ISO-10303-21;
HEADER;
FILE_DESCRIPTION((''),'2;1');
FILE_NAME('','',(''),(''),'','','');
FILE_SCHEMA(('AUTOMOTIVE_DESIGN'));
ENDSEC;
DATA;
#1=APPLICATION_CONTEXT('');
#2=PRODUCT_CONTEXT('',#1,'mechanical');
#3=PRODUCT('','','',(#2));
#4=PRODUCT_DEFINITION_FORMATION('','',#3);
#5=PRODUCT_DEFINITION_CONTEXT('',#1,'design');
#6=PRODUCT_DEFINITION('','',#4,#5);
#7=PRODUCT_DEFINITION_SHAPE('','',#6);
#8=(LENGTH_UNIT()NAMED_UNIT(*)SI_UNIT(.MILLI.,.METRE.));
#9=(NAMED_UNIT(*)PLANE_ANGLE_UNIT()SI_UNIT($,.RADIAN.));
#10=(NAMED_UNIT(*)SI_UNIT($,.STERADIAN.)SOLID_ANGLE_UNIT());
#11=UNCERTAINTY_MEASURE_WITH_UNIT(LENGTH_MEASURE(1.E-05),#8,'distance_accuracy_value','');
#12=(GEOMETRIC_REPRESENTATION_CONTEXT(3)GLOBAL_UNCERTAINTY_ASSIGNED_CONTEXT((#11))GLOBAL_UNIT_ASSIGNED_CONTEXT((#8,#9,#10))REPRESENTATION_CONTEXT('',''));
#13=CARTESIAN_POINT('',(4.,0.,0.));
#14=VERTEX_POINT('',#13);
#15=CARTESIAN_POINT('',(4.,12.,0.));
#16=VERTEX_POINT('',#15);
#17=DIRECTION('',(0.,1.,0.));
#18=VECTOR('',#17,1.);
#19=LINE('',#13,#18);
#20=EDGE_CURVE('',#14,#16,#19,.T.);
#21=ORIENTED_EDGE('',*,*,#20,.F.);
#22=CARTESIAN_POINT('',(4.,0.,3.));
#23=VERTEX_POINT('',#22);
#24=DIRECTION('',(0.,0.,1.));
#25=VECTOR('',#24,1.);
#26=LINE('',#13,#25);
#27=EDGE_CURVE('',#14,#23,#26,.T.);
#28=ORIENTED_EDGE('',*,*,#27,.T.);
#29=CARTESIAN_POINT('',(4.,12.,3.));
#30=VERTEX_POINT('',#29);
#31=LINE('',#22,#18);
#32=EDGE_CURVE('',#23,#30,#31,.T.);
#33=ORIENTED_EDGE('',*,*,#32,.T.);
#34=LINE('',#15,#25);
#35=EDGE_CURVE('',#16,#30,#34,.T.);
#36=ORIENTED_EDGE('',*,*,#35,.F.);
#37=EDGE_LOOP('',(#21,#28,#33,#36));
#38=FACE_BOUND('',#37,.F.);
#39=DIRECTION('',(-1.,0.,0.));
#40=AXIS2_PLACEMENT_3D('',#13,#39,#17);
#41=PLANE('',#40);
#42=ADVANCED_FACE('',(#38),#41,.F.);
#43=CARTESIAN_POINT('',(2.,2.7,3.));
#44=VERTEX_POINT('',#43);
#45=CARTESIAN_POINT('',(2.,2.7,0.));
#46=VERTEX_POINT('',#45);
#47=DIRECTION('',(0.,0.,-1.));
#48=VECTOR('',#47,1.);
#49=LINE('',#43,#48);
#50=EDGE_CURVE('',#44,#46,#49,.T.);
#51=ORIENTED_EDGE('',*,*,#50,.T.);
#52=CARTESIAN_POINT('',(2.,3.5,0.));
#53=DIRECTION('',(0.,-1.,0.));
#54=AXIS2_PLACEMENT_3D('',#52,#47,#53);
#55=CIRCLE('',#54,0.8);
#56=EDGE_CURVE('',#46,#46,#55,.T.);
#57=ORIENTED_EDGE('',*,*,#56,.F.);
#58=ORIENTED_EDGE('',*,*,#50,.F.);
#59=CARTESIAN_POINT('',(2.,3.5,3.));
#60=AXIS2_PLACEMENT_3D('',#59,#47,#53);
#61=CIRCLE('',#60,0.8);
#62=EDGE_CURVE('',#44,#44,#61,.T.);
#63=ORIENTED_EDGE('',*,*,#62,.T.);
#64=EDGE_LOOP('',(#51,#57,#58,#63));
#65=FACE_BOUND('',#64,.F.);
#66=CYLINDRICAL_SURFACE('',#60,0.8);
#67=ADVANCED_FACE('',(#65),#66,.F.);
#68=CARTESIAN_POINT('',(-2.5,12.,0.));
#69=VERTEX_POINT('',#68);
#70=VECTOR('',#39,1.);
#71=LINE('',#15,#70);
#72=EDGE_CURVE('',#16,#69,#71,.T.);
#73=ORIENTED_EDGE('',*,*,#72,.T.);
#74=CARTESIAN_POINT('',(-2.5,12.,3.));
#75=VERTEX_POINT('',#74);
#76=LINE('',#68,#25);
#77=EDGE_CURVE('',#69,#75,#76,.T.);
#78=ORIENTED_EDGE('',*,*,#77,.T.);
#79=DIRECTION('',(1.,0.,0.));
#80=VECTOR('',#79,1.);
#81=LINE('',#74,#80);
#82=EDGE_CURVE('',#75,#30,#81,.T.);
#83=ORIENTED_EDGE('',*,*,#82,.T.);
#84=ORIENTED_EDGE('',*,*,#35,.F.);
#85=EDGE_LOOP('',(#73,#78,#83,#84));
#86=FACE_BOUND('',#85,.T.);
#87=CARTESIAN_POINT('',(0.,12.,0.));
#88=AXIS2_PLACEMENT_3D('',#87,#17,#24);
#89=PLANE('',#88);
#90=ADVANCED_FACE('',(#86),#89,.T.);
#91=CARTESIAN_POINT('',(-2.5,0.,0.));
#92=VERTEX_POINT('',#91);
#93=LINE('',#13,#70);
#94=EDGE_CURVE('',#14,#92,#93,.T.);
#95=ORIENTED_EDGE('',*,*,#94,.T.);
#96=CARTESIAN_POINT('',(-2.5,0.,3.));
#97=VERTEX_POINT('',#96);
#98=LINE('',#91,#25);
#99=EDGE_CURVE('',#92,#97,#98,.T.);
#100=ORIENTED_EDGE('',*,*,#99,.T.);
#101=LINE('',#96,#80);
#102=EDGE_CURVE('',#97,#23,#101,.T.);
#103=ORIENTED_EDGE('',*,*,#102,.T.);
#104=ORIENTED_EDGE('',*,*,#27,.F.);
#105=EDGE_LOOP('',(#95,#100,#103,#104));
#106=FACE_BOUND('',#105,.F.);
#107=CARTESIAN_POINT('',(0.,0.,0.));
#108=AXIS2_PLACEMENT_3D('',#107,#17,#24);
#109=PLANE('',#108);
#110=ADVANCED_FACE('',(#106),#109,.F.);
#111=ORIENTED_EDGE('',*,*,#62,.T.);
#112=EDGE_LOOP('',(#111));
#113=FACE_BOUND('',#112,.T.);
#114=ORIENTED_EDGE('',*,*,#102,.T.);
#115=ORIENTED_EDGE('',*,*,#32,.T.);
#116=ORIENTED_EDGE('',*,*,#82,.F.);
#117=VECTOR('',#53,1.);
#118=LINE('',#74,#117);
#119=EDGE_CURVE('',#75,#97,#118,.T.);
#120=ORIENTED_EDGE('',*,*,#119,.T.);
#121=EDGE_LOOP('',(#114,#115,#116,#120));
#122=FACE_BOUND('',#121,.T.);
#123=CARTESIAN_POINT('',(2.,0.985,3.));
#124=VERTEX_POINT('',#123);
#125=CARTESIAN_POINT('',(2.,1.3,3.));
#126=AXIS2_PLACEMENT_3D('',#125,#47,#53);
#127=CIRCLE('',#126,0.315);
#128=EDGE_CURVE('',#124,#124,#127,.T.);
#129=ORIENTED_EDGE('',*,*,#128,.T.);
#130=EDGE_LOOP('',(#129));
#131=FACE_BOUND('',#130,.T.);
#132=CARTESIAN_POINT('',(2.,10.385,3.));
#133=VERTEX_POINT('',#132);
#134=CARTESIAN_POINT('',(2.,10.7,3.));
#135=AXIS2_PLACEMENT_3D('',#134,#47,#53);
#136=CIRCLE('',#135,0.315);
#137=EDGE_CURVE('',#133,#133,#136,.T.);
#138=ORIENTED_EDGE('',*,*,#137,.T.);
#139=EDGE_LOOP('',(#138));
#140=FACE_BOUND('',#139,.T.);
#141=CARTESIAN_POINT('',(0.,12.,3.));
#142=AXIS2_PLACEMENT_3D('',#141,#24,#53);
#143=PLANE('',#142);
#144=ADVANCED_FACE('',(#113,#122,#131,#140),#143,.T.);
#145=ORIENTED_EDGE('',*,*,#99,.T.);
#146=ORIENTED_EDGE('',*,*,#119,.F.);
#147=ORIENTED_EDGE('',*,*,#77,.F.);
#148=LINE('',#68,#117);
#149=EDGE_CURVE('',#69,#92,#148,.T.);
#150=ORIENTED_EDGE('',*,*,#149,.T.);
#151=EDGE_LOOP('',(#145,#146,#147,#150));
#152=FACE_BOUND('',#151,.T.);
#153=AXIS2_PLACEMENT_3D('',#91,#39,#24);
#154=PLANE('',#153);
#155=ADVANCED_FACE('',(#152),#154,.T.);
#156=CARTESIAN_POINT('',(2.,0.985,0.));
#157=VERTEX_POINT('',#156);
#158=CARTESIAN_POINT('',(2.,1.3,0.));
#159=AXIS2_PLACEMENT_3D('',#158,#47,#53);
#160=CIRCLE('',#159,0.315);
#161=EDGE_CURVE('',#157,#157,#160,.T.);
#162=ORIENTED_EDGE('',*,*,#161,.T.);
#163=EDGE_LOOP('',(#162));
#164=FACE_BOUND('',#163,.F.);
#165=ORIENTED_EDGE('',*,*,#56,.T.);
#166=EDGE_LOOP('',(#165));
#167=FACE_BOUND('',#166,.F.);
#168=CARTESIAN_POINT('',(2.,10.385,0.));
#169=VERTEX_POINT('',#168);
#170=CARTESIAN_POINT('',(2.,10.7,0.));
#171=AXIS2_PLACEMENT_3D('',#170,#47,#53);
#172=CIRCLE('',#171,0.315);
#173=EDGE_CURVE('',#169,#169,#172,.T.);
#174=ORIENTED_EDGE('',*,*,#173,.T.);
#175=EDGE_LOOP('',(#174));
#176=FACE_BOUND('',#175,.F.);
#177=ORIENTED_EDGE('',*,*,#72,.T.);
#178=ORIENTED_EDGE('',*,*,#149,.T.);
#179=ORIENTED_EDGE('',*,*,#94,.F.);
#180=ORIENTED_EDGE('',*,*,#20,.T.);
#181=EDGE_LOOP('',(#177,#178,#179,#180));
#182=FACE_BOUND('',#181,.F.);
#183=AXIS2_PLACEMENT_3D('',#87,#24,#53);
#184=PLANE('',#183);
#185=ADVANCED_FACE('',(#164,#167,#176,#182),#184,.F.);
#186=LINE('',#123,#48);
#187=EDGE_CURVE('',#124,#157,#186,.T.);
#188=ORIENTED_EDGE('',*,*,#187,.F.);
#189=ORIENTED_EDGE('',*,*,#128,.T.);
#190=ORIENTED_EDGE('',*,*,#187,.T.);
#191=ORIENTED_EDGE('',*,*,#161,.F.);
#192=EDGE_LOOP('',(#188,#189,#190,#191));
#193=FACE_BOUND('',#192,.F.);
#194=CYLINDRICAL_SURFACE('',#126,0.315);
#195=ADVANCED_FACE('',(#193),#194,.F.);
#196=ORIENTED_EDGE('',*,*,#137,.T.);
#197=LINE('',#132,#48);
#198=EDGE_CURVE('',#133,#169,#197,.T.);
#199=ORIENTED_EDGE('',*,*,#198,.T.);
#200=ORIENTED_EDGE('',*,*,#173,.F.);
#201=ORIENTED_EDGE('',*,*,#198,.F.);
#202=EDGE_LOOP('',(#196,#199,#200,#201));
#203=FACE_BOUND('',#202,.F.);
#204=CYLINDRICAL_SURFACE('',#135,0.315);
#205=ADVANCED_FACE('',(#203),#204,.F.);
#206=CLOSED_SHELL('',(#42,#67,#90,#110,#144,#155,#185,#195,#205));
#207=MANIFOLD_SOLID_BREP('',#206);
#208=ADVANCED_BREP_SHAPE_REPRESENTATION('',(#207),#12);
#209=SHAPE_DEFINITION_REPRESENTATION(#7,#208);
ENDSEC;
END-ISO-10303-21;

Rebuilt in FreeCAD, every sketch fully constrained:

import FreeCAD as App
import Part
import Sketcher

V = App.Vector

doc = App.newDocument("Part")
params = doc.addObject("Spreadsheet::Sheet", "Params")
for row, (alias, value) in enumerate([
    ("sketch1_width", "4 mm"),
    ("sketch1_height", "12 mm"),
    ("pad1_length", "3 mm"),
    ("sketch2_diameter", "1.6 mm"),
    ("hole_diameter", "1.6 mm"),
    ("sketch3_diameter", "0.63 mm"),
    ("hole2_diameter", "0.63 mm"),
    ("sketch4_width", "12 mm"),
    ("sketch4_height", "3 mm"),
    ("pad2_length", "2.5 mm"),
], start=1):
    params.set(f"A{row}", alias)
    params.set(f"B{row}", "=" + value)
    params.setAlias(f"B{row}", alias)

body = doc.addObject("PartDesign::Body", "Body")

# Sketch on XY plane
sketch1 = body.newObject("Sketcher::SketchObject", "Sketch")
sketch1.AttachmentSupport = (doc.getObject("XY_Plane"), [""])
sketch1.MapMode = "FlatFace"
sketch1.addGeometry([
    Part.LineSegment(V(0, 12, 0), V(0, 0, 0)),
    Part.LineSegment(V(0, 0, 0), V(4, 0, 0)),
    Part.LineSegment(V(4, 0, 0), V(4, 12, 0)),
    Part.LineSegment(V(4, 12, 0), V(0, 12, 0)),
], False)
sketch1.addConstraint([
    Sketcher.Constraint("Coincident", 0, 2, 1, 1),
    Sketcher.Constraint("Coincident", 1, 2, 2, 1),
    Sketcher.Constraint("Coincident", 2, 2, 3, 1),
    Sketcher.Constraint("Coincident", 3, 2, 0, 1),
    Sketcher.Constraint("Vertical", 0),
    Sketcher.Constraint("Horizontal", 1),
    Sketcher.Constraint("Vertical", 2),
    Sketcher.Constraint("Horizontal", 3),
    Sketcher.Constraint("Coincident", 0, 2, -1, 1),
    Sketcher.Constraint("DistanceX", 1, 1, 1, 2, 4.0),
    Sketcher.Constraint("DistanceY", 0, 2, 0, 1, 12.0),
])
sketch1.setExpression("Constraints[9]", "Params.sketch1_width")
sketch1.setExpression("Constraints[10]", "Params.sketch1_height")
pad1 = body.newObject("PartDesign::Pad", "Pad")
pad1.Profile = sketch1
pad1.setExpression("Length", "Params.pad1_length")

# Sketch on XY plane
sketch2 = body.newObject("Sketcher::SketchObject", "Sketch001")
sketch2.AttachmentSupport = (doc.getObject("XY_Plane"), [""])
sketch2.MapMode = "FlatFace"
sketch2.AttachmentOffset = App.Placement(V(0, 0, 3), App.Rotation())
sketch2.addGeometry(Part.Circle(V(2, 3.5, 0), V(0, 0, 1), 0.8), False)
sketch2.addConstraint([
    Sketcher.Constraint("Diameter", 0, 1.6),
    Sketcher.Constraint("DistanceX", -1, 1, 0, 3, 2.0),
    Sketcher.Constraint("DistanceY", -1, 1, 0, 3, 3.5),
])
sketch2.setExpression("Constraints[0]", "Params.sketch2_diameter")
doc.recompute()
hole = body.newObject("PartDesign::Hole", "Hole")
hole.Profile = sketch2
hole.ThreadType = "None"
hole.setExpression("Diameter", "Params.hole_diameter")
hole.DepthType = "ThroughAll"

# Sketch on XY plane
sketch3 = body.newObject("Sketcher::SketchObject", "Sketch002")
sketch3.AttachmentSupport = (doc.getObject("XY_Plane"), [""])
sketch3.MapMode = "FlatFace"
sketch3.AttachmentOffset = App.Placement(V(0, 0, 3), App.Rotation())
sketch3.addGeometry([
    Part.Circle(V(2, 1.3, 0), V(0, 0, 1), 0.32),
    Part.Circle(V(2, 10.7, 0), V(0, 0, 1), 0.32),
], False)
sketch3.addConstraint([
    Sketcher.Constraint("Equal", 0, 1),
    Sketcher.Constraint("Vertical", 0, 3, 1, 3),
    Sketcher.Constraint("Diameter", 0, 0.63),
    Sketcher.Constraint("DistanceX", -1, 1, 0, 3, 2.0),
    Sketcher.Constraint("DistanceY", -1, 1, 0, 3, 1.3),
    Sketcher.Constraint("DistanceY", -1, 1, 1, 3, 10.7),
])
sketch3.setExpression("Constraints[2]", "Params.sketch3_diameter")
doc.recompute()
hole2 = body.newObject("PartDesign::Hole", "Hole001")
hole2.Profile = sketch3
hole2.ThreadType = "None"
hole2.setExpression("Diameter", "Params.hole2_diameter")
hole2.DepthType = "ThroughAll"

# Sketch on YZ plane
sketch4 = body.newObject("Sketcher::SketchObject", "Sketch003")
sketch4.AttachmentSupport = (doc.getObject("YZ_Plane"), [""])
sketch4.MapMode = "FlatFace"
sketch4.addGeometry([
    Part.LineSegment(V(12, 3, 0), V(12, 0, 0)),
    Part.LineSegment(V(12, 0, 0), V(0, 0, 0)),
    Part.LineSegment(V(0, 0, 0), V(0, 3, 0)),
    Part.LineSegment(V(0, 3, 0), V(12, 3, 0)),
], False)
sketch4.addConstraint([
    Sketcher.Constraint("Coincident", 0, 2, 1, 1),
    Sketcher.Constraint("Coincident", 1, 2, 2, 1),
    Sketcher.Constraint("Coincident", 2, 2, 3, 1),
    Sketcher.Constraint("Coincident", 3, 2, 0, 1),
    Sketcher.Constraint("Vertical", 0),
    Sketcher.Constraint("Horizontal", 1),
    Sketcher.Constraint("Vertical", 2),
    Sketcher.Constraint("Horizontal", 3),
    Sketcher.Constraint("Coincident", 1, 2, -1, 1),
    Sketcher.Constraint("DistanceX", 1, 2, 1, 1, 12.0),
    Sketcher.Constraint("DistanceY", 0, 2, 0, 1, 3.0),
])
sketch4.setExpression("Constraints[9]", "Params.sketch4_width")
sketch4.setExpression("Constraints[10]", "Params.sketch4_height")
pad2 = body.newObject("PartDesign::Pad", "Pad001")
pad2.Profile = sketch4
pad2.setExpression("Length", "Params.pad2_length")
pad2.Reversed = True

doc.recompute()
